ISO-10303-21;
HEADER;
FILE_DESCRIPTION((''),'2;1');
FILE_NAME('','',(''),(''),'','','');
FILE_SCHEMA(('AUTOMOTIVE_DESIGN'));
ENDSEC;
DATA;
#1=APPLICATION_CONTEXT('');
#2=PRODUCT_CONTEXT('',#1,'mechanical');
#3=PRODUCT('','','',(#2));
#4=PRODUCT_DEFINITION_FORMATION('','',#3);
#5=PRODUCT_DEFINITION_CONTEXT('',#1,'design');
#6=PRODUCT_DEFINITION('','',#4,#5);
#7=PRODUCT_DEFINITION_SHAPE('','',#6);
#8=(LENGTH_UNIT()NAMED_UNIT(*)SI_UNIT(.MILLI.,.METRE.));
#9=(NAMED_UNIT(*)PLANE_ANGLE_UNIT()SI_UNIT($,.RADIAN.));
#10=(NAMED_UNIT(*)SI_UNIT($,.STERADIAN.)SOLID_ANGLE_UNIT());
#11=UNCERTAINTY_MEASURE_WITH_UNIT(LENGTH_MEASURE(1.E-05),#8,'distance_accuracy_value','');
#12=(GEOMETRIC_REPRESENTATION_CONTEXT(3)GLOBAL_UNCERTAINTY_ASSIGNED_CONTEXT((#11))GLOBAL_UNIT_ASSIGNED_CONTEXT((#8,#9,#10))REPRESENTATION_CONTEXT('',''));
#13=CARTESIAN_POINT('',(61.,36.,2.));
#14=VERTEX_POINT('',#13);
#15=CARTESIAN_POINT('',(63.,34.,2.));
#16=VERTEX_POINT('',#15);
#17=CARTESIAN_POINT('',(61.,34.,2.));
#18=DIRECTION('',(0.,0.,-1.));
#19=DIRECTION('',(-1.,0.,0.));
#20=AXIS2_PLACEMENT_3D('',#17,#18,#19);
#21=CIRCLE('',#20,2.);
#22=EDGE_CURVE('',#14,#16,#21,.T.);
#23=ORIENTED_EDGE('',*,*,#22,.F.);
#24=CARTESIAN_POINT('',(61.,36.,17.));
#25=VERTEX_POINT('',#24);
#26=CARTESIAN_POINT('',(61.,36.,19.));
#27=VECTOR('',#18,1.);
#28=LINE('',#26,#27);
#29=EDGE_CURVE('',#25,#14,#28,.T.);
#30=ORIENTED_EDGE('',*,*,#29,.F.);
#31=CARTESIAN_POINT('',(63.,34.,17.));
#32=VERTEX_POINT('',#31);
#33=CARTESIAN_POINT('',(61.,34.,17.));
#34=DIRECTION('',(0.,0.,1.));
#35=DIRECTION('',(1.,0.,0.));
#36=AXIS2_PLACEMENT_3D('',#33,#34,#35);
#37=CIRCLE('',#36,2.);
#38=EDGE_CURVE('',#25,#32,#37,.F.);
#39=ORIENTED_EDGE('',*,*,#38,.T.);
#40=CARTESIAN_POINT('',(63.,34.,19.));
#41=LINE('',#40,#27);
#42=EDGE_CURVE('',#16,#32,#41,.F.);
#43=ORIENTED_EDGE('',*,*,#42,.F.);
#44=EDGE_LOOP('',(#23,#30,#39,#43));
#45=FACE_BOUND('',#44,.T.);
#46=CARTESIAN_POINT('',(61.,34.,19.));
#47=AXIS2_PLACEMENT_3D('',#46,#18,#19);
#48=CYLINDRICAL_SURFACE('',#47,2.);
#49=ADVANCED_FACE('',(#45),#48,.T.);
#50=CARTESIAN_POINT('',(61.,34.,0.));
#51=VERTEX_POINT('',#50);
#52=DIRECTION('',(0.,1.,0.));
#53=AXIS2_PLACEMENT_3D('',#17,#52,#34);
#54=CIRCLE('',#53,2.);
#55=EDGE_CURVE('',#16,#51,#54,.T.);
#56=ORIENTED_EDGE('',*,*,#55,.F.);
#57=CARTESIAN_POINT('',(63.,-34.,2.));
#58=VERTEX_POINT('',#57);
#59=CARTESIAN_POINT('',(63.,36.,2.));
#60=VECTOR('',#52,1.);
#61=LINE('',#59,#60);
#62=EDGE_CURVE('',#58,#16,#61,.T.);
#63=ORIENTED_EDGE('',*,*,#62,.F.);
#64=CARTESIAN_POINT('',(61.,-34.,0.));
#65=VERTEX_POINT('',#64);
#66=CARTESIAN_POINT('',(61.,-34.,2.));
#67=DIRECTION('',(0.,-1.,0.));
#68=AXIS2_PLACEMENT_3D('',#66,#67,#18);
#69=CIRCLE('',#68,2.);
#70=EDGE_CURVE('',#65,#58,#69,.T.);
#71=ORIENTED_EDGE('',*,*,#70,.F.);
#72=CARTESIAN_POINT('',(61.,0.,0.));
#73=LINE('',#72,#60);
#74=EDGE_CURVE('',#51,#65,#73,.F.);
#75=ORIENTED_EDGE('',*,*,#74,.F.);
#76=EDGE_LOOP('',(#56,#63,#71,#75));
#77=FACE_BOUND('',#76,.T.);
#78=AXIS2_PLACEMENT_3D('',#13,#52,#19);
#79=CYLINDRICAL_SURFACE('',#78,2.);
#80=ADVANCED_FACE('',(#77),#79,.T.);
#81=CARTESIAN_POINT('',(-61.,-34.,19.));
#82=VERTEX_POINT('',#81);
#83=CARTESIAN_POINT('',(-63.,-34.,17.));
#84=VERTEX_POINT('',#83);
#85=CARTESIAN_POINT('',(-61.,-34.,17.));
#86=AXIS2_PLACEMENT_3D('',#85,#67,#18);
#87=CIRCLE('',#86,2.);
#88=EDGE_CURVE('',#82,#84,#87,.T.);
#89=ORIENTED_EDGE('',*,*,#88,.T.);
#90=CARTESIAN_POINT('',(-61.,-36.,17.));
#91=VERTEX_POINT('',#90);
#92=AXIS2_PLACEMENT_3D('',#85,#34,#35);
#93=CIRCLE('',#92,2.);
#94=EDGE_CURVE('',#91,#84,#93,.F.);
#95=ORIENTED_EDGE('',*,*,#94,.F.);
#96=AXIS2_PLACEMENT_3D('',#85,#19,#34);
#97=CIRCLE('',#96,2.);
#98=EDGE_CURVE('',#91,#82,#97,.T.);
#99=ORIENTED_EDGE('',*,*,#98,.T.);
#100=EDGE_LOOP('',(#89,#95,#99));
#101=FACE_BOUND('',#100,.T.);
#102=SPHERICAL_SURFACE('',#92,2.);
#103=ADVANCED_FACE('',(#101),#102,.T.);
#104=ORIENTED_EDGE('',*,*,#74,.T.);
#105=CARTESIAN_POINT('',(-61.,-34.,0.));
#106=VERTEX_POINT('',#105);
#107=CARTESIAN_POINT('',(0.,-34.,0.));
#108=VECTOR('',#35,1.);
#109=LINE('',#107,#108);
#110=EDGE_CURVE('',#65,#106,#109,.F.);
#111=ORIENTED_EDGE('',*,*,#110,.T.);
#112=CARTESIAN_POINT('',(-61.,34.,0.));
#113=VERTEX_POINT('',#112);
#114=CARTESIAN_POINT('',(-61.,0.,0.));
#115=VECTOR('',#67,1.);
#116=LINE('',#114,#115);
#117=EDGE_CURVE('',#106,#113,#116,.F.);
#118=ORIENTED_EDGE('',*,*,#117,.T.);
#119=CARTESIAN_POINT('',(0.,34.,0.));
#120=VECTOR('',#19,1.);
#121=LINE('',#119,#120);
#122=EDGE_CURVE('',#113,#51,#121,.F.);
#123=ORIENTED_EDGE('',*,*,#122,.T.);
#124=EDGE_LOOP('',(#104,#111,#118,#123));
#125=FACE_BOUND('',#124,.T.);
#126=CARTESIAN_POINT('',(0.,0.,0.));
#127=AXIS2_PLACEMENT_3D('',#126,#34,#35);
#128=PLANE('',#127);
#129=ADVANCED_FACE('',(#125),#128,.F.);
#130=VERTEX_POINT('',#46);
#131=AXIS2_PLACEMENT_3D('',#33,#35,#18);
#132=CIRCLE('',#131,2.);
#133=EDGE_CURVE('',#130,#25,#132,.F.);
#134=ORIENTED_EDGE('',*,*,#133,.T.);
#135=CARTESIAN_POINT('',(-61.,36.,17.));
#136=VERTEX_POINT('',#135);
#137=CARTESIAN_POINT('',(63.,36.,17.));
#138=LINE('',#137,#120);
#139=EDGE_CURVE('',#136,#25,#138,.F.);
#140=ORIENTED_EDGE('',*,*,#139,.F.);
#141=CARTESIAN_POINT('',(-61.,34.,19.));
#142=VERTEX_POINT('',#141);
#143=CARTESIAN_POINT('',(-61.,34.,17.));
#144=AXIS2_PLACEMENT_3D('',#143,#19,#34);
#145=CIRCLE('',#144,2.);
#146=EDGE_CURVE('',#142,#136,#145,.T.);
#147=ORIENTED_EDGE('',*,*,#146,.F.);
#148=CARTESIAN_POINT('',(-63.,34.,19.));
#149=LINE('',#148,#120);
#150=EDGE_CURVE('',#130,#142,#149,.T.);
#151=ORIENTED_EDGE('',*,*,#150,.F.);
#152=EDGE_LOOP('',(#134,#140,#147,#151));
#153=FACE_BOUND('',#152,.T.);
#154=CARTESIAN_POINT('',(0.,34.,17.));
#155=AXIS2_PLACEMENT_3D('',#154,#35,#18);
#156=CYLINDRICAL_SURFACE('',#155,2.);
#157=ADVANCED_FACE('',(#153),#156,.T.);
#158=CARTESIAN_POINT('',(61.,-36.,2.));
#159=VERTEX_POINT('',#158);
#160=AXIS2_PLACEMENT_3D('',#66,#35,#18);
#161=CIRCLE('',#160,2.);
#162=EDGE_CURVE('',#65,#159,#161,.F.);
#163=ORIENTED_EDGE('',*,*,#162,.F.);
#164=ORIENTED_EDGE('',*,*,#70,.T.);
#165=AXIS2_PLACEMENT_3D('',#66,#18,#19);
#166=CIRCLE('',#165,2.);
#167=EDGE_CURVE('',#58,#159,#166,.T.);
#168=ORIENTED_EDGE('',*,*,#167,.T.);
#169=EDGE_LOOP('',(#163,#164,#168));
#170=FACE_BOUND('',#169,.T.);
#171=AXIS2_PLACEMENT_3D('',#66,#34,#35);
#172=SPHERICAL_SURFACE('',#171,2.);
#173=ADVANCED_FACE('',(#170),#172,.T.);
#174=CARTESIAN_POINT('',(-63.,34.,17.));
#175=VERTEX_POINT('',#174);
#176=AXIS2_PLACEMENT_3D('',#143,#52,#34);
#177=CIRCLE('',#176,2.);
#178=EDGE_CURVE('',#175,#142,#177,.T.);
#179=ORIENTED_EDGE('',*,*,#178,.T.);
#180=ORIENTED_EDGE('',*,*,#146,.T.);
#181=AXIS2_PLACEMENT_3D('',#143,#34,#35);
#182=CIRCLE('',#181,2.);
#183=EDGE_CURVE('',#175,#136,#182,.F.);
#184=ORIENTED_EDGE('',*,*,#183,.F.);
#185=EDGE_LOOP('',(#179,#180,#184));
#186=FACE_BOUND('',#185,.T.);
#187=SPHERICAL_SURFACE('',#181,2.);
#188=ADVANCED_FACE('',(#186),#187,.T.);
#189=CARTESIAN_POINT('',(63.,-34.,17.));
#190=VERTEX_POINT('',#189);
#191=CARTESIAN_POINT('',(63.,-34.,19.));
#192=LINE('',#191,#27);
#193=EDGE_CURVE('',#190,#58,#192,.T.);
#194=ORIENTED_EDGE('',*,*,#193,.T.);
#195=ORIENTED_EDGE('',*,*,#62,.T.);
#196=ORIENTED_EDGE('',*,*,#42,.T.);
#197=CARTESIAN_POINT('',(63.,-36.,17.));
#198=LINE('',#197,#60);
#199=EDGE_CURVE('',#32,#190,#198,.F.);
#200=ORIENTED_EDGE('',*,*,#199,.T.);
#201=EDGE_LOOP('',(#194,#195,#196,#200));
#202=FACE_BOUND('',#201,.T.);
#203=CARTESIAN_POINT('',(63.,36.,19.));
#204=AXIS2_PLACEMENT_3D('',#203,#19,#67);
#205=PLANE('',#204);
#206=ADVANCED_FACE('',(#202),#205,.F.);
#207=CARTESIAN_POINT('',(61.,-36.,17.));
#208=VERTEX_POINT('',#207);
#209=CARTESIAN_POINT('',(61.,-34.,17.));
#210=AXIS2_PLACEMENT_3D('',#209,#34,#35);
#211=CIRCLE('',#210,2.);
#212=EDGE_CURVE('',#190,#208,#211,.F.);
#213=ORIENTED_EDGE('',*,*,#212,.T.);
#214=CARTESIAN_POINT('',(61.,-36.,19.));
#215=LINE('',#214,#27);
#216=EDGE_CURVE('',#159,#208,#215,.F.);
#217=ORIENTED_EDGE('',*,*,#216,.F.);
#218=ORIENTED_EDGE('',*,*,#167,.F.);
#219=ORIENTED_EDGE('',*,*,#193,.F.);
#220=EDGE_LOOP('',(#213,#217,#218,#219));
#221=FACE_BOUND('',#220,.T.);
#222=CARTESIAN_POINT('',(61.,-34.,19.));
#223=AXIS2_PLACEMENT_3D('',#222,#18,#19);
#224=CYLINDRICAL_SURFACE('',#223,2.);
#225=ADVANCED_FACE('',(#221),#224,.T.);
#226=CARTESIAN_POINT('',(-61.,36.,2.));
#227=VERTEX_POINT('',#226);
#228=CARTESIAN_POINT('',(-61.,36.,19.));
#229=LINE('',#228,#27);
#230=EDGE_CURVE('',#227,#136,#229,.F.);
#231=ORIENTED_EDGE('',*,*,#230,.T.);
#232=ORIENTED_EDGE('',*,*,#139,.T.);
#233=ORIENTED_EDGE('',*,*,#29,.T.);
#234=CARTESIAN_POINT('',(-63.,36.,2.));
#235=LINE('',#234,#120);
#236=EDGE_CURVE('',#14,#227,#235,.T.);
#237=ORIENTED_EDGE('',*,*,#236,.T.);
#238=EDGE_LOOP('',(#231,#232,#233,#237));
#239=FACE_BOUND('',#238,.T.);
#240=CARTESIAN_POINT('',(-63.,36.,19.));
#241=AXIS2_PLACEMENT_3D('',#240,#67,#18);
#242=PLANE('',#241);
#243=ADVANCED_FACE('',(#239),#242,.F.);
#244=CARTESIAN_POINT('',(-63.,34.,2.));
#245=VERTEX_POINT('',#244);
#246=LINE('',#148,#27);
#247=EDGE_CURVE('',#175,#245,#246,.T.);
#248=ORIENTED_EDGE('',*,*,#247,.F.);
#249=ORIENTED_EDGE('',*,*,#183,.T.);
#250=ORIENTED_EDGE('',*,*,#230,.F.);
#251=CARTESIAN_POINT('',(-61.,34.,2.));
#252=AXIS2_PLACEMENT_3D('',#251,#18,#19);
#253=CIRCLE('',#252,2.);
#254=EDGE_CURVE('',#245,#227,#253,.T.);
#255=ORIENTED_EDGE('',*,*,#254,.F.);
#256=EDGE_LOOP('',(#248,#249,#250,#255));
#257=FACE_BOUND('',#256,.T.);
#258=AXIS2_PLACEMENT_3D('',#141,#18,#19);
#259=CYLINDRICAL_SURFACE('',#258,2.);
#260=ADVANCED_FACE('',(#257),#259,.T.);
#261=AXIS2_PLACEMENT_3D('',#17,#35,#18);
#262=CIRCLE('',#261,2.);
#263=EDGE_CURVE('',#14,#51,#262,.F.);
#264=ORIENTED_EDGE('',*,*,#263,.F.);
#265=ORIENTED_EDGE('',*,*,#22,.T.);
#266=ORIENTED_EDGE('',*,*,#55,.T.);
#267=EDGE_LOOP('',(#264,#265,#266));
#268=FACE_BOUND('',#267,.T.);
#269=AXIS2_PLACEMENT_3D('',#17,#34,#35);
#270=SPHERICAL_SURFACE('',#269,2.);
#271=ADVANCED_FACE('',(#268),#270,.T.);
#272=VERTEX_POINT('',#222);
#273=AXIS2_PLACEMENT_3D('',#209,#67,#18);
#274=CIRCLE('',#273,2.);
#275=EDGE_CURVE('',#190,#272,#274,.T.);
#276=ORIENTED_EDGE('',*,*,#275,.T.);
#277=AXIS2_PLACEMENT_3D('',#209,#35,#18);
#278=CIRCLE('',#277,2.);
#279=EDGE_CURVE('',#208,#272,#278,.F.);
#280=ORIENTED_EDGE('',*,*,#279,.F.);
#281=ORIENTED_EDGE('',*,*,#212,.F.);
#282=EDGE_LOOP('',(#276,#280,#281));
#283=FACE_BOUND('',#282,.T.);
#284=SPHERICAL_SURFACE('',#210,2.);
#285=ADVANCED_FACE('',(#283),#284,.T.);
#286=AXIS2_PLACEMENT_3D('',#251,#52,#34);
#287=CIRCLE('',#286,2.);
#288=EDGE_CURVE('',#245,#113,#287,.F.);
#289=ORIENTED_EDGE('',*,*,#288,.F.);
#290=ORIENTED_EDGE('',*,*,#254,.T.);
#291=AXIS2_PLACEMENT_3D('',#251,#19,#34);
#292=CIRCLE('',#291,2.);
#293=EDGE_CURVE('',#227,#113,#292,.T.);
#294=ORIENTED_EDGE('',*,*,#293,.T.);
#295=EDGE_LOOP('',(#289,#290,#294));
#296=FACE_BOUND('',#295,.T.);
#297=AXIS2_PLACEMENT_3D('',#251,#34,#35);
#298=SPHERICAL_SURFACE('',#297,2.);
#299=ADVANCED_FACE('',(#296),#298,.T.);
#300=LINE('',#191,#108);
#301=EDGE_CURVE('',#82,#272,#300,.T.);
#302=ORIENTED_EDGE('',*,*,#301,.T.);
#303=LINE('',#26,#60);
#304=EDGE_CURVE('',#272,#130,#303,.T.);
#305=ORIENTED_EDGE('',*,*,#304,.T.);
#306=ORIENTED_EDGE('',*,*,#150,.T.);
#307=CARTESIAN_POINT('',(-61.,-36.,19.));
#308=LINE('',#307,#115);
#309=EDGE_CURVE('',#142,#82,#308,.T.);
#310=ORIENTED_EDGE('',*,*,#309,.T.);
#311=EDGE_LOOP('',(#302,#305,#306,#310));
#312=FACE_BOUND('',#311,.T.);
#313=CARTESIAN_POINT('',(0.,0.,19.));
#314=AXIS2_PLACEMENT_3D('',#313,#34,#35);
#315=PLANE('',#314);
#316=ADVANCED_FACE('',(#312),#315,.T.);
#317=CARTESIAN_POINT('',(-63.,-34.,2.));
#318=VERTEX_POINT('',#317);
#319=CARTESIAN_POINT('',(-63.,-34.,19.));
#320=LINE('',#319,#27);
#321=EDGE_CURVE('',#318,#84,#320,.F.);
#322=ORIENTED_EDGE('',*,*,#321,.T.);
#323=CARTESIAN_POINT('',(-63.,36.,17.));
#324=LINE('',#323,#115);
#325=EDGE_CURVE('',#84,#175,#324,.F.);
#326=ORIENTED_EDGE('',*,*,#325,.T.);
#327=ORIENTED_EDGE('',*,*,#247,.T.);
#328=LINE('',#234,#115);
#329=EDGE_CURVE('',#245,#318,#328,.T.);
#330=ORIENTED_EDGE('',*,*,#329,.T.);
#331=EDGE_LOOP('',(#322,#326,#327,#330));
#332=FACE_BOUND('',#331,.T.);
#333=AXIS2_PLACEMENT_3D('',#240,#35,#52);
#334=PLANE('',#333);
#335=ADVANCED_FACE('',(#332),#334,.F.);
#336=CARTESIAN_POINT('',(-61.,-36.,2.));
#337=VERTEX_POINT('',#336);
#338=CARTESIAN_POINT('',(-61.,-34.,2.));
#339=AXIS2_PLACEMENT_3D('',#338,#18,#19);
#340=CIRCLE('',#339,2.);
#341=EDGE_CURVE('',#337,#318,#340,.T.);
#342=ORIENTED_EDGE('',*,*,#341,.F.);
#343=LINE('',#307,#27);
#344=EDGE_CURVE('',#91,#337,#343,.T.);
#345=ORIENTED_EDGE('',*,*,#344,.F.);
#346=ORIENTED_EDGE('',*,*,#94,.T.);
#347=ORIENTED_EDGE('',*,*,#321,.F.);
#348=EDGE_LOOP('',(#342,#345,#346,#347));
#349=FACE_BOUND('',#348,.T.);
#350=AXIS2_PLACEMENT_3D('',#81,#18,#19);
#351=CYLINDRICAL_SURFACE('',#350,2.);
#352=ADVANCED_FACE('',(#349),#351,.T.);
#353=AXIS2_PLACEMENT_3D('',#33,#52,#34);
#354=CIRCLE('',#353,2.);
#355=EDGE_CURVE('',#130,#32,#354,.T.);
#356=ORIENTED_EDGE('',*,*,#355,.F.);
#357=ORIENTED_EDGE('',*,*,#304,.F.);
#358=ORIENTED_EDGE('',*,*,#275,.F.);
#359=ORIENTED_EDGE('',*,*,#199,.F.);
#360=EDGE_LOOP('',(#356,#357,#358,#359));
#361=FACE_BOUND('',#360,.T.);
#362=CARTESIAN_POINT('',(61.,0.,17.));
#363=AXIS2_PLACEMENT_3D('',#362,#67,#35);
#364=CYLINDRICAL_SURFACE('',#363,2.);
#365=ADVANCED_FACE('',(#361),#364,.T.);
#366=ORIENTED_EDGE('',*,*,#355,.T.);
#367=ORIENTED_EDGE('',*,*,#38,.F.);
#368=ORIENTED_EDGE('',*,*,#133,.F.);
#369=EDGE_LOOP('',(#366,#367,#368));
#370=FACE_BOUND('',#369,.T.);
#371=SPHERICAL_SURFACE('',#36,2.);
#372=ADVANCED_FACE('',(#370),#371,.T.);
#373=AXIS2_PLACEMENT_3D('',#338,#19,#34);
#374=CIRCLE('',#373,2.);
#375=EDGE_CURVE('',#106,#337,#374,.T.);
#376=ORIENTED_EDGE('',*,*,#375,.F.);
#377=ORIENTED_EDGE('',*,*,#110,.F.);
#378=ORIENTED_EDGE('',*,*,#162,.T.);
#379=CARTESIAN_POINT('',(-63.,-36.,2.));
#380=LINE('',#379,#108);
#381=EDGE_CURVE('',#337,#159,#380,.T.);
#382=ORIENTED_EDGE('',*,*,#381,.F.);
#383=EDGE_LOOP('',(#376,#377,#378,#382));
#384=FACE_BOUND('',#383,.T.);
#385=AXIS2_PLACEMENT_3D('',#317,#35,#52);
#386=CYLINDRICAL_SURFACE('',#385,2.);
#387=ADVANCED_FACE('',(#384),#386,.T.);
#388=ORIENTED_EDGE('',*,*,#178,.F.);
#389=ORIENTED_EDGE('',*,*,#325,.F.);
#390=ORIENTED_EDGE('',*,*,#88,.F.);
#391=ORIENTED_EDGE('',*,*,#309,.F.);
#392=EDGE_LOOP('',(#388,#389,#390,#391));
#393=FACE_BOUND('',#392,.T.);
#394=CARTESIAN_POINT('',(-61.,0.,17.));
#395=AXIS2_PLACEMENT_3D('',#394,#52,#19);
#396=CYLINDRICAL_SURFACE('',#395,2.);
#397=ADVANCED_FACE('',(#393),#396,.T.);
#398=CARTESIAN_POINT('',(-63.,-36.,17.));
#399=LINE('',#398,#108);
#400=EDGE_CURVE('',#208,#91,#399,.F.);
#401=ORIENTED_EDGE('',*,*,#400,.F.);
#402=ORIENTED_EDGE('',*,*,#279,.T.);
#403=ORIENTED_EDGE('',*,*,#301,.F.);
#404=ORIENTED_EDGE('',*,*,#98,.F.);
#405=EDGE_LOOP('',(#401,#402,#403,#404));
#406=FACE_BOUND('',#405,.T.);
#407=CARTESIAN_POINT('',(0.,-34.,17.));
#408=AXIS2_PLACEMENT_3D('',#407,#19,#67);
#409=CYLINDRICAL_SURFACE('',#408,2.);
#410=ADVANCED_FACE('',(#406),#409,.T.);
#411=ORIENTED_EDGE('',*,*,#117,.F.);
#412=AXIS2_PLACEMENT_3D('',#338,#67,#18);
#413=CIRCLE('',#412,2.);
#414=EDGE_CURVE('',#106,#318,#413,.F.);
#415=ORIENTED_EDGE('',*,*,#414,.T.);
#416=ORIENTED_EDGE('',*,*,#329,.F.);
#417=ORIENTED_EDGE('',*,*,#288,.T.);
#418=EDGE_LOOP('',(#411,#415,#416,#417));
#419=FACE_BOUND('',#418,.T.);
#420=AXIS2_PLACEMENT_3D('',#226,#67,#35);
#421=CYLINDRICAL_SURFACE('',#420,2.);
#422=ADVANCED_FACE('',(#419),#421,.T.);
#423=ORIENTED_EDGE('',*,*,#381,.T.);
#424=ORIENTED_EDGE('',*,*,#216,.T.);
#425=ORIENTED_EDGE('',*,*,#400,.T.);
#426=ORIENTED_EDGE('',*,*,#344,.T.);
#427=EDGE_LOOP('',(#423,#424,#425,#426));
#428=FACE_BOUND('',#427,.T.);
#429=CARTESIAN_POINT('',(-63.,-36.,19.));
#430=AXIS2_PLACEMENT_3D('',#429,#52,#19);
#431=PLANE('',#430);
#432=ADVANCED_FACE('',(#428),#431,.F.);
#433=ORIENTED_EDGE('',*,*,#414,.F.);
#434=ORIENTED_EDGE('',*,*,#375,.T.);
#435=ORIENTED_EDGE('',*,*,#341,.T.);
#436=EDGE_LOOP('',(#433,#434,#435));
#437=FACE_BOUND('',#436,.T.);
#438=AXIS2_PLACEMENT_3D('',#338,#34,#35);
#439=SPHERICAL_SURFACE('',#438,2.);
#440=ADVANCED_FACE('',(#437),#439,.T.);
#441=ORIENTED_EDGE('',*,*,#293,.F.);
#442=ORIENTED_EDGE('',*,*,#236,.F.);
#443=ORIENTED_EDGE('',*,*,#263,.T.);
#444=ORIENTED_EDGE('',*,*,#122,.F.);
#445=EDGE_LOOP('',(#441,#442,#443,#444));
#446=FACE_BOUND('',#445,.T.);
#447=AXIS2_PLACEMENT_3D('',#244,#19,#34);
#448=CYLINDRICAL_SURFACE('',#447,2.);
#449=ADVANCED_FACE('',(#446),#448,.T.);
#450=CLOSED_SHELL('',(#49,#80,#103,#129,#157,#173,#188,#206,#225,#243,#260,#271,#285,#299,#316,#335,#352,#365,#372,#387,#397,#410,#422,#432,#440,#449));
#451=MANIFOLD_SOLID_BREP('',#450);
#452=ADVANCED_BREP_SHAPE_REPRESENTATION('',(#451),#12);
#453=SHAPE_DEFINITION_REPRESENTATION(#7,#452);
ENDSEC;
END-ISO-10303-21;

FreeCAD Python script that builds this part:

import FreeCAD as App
import Part
import Sketcher
from FreeCAD import Vector

doc = App.newDocument("Part")
params = doc.addObject("Spreadsheet::Sheet", "Params")
for row, (alias, value) in enumerate([
    ("sketch1_width", "126 mm"),
    ("sketch1_height", "72 mm"),
    ("pad1_length", "19 mm"),
    ("fillet_radius", "2 mm"),
], start=1):
    params.set(f"A{row}", alias)
    params.set(f"B{row}", "=" + value)
    params.setAlias(f"B{row}", alias)

body = doc.addObject("PartDesign::Body", "Body")

# Sketch on XY plane
sketch1 = body.newObject("Sketcher::SketchObject", "Sketch")
sketch1.AttachmentSupport = (doc.getObject("XY_Plane"), [""])
sketch1.MapMode = "FlatFace"
sketch1.addGeometry(Part.LineSegment(Vector(-63, 36, 0), Vector(-63, -36, 0)), False)
sketch1.addGeometry(Part.LineSegment(Vector(-63, -36, 0), Vector(63, -36, 0)), False)
sketch1.addGeometry(Part.LineSegment(Vector(63, -36, 0), Vector(63, 36, 0)), False)
sketch1.addGeometry(Part.LineSegment(Vector(63, 36, 0), Vector(-63, 36, 0)), False)
sketch1.addConstraint(Sketcher.Constraint("Coincident", 0, 2, 1, 1))
sketch1.addConstraint(Sketcher.Constraint("Coincident", 1, 2, 2, 1))
sketch1.addConstraint(Sketcher.Constraint("Coincident", 2, 2, 3, 1))
sketch1.addConstraint(Sketcher.Constraint("Coincident", 3, 2, 0, 1))
sketch1.addConstraint(Sketcher.Constraint("Vertical", 0))
sketch1.addConstraint(Sketcher.Constraint("Horizontal", 1))
sketch1.addConstraint(Sketcher.Constraint("Vertical", 2))
sketch1.addConstraint(Sketcher.Constraint("Horizontal", 3))
sketch1.addConstraint(Sketcher.Constraint("Symmetric", 0, 2, 2, 2, -1, 1))
sketch1.addConstraint(Sketcher.Constraint("DistanceX", 1, 1, 1, 2, 126.0))
sketch1.addConstraint(Sketcher.Constraint("DistanceY", 0, 2, 0, 1, 72.0))
sketch1.setExpression("Constraints[9]", "Params.sketch1_width")
sketch1.setExpression("Constraints[10]", "Params.sketch1_height")
pad1 = body.newObject("PartDesign::Pad", "Pad")
pad1.Profile = sketch1
pad1.setExpression("Length", "Params.pad1_length")
doc.recompute()

fillet = body.newObject("PartDesign::Fillet", "Fillet")
fillet.Base = (pad1, ["Edge1"])
fillet.UseAllEdges = True
fillet.setExpression("Radius", "Params.fillet_radius")

doc.recompute()
